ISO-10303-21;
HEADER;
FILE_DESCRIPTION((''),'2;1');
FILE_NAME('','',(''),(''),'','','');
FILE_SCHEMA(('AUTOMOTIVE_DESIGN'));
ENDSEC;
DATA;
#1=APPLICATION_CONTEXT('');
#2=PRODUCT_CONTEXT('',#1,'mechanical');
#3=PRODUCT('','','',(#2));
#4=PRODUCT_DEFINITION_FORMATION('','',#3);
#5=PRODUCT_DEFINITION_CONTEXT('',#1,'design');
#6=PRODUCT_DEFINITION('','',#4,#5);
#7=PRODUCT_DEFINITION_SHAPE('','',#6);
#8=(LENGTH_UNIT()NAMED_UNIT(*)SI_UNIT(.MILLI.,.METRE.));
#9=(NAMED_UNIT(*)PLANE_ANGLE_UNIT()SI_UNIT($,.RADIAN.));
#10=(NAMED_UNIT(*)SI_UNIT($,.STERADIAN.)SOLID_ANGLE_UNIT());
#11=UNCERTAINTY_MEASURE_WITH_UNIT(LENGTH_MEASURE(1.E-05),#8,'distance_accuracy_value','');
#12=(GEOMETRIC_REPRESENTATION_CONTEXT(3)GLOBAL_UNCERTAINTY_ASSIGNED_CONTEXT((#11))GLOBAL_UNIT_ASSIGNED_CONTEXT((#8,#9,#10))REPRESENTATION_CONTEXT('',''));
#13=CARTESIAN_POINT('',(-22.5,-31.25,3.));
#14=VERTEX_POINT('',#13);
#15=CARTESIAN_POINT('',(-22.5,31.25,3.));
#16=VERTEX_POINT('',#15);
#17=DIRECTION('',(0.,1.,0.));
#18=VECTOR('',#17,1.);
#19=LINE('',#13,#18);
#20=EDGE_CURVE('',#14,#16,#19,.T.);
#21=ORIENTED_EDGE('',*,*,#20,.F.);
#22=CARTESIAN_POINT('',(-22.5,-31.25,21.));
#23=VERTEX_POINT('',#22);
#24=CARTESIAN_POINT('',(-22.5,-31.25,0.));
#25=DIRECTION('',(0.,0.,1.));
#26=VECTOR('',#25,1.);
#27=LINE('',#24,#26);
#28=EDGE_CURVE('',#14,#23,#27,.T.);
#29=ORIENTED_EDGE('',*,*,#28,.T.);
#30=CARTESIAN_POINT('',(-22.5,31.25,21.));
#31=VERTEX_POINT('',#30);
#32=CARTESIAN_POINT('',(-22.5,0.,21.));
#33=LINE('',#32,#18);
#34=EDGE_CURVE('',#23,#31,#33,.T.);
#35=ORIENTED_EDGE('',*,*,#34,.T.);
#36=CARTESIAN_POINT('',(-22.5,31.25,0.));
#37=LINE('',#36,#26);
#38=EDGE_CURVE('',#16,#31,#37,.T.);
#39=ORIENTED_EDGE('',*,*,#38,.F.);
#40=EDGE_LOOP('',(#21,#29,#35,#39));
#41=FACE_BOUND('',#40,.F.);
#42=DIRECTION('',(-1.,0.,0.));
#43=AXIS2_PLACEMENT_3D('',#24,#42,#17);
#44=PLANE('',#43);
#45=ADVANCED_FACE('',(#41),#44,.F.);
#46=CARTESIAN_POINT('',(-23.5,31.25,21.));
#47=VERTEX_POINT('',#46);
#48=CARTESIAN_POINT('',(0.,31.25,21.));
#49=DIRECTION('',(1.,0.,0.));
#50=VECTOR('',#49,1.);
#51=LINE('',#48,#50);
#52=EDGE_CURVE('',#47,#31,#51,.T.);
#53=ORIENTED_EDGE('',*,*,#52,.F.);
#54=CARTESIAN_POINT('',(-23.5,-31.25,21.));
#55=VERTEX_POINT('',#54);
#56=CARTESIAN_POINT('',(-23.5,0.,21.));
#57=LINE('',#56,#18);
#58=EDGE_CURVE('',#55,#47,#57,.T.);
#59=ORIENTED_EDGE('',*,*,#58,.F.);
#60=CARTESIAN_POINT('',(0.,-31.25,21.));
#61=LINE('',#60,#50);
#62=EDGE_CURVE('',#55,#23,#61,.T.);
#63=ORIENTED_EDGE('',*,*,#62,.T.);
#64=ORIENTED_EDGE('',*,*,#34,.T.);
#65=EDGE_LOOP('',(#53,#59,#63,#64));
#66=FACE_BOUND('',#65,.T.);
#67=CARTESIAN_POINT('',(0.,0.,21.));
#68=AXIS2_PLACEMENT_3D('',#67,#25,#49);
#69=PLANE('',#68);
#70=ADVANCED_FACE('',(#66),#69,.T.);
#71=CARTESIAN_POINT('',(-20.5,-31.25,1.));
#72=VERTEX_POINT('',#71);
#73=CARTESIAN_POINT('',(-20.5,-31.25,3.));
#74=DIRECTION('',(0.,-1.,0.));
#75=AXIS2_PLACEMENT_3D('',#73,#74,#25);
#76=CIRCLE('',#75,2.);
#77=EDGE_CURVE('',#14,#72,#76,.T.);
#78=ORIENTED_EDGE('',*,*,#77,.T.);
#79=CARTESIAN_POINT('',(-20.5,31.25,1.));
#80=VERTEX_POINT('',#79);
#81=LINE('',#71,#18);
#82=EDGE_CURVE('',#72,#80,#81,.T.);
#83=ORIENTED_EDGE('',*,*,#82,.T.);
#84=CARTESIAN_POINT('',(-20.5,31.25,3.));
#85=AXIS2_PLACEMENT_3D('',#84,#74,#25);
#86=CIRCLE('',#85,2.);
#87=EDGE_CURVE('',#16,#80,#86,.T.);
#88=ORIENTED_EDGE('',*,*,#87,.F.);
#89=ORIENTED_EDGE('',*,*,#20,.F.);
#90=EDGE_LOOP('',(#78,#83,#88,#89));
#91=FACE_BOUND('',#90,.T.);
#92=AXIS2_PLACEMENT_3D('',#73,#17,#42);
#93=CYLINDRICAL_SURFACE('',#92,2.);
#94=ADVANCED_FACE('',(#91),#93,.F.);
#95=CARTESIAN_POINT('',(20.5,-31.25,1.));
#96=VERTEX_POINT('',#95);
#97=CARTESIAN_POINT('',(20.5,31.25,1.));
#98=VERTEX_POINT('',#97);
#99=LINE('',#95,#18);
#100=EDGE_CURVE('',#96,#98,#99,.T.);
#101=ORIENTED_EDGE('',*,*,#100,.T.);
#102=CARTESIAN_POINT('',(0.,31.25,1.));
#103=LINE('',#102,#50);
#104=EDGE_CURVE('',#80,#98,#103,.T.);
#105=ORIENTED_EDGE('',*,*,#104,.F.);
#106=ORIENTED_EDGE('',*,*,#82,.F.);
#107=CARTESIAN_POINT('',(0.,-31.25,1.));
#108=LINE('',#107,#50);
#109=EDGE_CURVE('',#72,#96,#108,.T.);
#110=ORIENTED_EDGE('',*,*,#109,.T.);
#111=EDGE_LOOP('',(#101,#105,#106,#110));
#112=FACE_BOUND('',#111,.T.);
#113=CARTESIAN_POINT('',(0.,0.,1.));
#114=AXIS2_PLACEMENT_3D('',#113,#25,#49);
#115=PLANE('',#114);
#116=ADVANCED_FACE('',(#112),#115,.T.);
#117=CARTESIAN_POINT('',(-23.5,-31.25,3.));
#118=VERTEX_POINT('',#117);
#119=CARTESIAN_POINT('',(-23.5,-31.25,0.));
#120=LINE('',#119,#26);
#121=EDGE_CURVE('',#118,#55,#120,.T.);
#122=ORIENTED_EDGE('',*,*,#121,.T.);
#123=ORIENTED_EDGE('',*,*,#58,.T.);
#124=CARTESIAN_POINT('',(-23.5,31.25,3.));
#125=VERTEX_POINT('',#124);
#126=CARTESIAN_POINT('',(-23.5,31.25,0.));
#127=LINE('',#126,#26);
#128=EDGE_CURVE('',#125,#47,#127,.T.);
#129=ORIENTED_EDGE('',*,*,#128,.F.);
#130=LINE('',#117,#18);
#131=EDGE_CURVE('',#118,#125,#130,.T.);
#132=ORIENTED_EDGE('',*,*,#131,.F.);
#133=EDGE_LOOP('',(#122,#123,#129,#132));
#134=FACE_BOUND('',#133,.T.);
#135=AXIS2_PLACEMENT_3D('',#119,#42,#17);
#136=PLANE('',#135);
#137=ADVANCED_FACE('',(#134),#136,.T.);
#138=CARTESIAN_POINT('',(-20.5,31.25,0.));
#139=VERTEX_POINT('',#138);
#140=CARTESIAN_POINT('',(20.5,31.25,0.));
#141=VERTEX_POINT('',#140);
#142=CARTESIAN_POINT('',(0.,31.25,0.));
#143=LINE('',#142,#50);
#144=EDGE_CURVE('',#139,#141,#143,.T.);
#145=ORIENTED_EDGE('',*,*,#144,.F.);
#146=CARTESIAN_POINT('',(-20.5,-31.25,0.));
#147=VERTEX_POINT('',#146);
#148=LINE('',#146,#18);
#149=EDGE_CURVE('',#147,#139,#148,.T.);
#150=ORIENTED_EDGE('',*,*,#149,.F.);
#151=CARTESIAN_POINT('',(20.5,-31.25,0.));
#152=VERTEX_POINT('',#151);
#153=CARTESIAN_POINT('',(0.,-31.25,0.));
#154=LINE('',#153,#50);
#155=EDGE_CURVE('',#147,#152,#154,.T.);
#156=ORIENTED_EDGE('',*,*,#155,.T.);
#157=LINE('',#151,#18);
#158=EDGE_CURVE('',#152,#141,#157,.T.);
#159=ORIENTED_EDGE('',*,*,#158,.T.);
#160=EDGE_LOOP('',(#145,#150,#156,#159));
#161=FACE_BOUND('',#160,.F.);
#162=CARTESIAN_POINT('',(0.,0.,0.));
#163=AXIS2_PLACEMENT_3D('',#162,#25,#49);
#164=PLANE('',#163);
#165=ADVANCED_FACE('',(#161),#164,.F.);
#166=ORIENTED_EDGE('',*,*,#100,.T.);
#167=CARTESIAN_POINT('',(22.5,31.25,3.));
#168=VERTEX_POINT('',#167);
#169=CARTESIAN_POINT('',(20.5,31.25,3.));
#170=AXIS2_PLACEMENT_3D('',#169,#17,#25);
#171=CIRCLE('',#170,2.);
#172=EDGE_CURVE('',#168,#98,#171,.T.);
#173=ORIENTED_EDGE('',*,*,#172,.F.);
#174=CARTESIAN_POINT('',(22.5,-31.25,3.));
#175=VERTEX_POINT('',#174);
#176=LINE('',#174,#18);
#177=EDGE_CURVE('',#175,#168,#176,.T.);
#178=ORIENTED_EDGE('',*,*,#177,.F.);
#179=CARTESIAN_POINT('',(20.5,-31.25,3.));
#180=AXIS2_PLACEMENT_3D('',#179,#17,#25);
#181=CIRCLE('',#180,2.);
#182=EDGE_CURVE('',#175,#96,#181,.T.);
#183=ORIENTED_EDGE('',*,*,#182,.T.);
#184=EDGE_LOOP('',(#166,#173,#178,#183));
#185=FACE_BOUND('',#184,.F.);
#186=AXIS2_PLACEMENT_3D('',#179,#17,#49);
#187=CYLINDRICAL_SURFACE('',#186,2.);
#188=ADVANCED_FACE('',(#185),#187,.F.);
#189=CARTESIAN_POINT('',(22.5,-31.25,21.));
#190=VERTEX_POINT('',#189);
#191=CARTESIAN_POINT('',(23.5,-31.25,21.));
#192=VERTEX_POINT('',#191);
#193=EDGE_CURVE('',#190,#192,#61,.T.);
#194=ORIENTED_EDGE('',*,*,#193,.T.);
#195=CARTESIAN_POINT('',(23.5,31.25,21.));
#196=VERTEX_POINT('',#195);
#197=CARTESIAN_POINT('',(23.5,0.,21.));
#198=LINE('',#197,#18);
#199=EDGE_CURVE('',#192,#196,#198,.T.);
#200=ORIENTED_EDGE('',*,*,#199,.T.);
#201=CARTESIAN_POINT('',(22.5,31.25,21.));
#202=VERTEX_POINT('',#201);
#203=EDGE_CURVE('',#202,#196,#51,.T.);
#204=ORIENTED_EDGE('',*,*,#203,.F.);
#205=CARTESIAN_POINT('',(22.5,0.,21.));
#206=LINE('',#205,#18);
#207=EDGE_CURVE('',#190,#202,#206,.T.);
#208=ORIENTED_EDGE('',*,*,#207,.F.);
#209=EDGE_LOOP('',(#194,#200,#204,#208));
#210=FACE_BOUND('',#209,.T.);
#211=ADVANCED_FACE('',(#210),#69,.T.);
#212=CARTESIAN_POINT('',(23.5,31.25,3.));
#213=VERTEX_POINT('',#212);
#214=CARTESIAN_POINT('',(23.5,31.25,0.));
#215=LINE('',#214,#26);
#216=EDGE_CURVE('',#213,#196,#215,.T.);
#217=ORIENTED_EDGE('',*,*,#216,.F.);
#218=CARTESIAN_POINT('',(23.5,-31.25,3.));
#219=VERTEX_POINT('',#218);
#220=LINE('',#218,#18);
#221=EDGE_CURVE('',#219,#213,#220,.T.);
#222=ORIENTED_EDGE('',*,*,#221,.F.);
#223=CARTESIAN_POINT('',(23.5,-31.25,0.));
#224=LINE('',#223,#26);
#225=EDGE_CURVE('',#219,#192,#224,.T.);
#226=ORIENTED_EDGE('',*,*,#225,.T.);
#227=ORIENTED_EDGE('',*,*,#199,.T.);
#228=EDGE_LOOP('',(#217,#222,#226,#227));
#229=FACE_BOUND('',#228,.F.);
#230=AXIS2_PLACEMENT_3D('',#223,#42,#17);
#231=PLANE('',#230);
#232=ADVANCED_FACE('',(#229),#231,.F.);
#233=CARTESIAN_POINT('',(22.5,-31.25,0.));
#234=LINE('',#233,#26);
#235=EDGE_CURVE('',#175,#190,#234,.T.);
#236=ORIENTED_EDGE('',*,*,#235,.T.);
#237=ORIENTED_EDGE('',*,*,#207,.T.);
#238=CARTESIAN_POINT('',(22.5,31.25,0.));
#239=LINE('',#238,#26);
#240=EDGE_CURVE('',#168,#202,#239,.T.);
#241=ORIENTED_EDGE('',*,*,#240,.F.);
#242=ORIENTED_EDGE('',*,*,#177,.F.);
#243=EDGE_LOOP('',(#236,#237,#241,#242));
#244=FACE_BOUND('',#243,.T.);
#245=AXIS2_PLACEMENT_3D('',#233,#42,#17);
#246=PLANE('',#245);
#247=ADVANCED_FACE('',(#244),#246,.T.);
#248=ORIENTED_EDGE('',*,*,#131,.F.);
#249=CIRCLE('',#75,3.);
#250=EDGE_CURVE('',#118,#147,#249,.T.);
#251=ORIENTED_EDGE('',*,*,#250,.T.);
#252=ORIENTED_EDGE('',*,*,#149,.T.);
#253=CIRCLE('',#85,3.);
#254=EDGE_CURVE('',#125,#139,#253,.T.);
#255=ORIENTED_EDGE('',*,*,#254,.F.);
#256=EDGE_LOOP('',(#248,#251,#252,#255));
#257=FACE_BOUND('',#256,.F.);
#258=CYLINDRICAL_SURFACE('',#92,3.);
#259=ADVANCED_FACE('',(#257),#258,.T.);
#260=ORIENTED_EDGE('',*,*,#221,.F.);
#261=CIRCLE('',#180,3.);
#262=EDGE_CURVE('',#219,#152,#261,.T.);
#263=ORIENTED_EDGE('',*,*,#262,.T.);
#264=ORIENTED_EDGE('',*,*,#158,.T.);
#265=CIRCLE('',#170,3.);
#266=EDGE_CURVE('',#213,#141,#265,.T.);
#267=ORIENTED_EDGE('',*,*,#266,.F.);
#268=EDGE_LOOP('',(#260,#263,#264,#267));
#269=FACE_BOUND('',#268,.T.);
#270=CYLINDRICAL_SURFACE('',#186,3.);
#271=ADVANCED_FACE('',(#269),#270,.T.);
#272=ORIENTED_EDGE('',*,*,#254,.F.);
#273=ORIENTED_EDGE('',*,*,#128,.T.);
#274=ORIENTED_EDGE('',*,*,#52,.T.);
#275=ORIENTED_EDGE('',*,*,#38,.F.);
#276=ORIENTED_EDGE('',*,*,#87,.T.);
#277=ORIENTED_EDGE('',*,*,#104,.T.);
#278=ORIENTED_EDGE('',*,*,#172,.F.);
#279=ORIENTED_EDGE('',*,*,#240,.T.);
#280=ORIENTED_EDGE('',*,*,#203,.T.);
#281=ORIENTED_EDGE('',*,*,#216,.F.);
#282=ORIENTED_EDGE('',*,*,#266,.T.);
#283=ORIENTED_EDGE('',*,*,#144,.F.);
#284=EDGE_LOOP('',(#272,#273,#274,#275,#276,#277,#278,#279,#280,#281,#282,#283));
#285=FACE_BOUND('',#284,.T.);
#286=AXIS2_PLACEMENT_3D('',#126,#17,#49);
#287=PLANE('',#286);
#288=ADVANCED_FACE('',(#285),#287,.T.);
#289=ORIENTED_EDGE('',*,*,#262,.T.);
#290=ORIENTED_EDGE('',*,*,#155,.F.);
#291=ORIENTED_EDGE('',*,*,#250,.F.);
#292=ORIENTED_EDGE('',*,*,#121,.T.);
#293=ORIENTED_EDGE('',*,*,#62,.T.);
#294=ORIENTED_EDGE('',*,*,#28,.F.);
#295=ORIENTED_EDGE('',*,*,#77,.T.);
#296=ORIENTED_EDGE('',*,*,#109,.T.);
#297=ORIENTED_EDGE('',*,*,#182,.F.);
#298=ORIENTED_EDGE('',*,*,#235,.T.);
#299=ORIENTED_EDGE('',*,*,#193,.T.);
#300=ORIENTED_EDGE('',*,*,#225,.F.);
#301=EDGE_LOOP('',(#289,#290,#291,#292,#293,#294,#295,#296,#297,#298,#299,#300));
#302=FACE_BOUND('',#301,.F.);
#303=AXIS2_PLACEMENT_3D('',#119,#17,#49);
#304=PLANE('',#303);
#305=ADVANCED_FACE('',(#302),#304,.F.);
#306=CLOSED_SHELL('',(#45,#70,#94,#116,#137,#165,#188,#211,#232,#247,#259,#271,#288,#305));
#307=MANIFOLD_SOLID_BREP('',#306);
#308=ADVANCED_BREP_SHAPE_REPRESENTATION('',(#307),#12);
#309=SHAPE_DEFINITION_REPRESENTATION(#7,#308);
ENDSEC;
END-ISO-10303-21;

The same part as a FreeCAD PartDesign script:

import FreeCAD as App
import Part
import Sketcher
from FreeCAD import Vector


def edges_at(feature, points):
    """Names of the edges that pass closest to the given points."""
    edges = feature.Shape.Edges
    near = lambda p: min(range(len(edges)), key=lambda i: edges[i].distToShape(Part.Vertex(*p))[0])
    return sorted({f"Edge{near(p) + 1}" for p in points})


def faces_at(feature, points):
    """Names of the faces that lie closest to the given points."""
    faces = feature.Shape.Faces
    near = lambda p: min(range(len(faces)), key=lambda i: faces[i].distToShape(Part.Vertex(*p))[0])
    return sorted({f"Face{near(p) + 1}" for p in points})


def add_polygon(sketch, points):
    """Adds a closed chain of lines whose ends are joined by coincident constraints."""
    first, n = sketch.GeometryCount, len(points)
    for a, b in zip(points, points[1:] + points[:1]):
        sketch.addGeometry(Part.LineSegment(App.Vector(*a, 0), App.Vector(*b, 0)), False)
    for i in range(n):
        sketch.addConstraint(Sketcher.Constraint("Coincident", first + i, 2, first + (i + 1) % n, 1))

doc = App.newDocument("Part")
body = doc.addObject("PartDesign::Body", "Body")

# Sketch on XY plane
sketch1 = body.newObject("Sketcher::SketchObject", "Sketch")
sketch1.AttachmentSupport = (doc.getObject("XY_Plane"), [""])
sketch1.MapMode = "FlatFace"
add_polygon(sketch1, [(-24, 31), (-24, -31), (24, -31), (24, 31)])  # lines 0-3
sketch1.addConstraint(Sketcher.Constraint("Vertical", 0))
sketch1.addConstraint(Sketcher.Constraint("Horizontal", 1))
sketch1.addConstraint(Sketcher.Constraint("Vertical", 2))
sketch1.addConstraint(Sketcher.Constraint("Horizontal", 3))
sketch1.addConstraint(Sketcher.Constraint("Symmetric", 0, 2, 2, 2, -1, 1))
sketch1.addConstraint(Sketcher.Constraint("DistanceX", 1, 1, 1, 2, 47.0))
sketch1.addConstraint(Sketcher.Constraint("DistanceY", 0, 2, 0, 1, 62.5))
pad1 = body.newObject("PartDesign::Pad", "Pad")
pad1.Profile = sketch1
pad1.Length = 21
doc.recompute()

fillet = body.newObject("PartDesign::Fillet", "Fillet")
fillet.Base = (pad1, edges_at(pad1, [(23.5, 0, 0), (-23.5, 0, 0)]))
fillet.Radius = 3
doc.recompute()

thickness = body.newObject("PartDesign::Thickness", "Thickness")
thickness.Base = (fillet, faces_at(fillet, [(0, 0, 21), (0, -31.25, 10.5), (0, 31.25, 10.5)]))
thickness.Value = 1
thickness.Reversed = True
thickness.Join = "Arc"

doc.recompute()
